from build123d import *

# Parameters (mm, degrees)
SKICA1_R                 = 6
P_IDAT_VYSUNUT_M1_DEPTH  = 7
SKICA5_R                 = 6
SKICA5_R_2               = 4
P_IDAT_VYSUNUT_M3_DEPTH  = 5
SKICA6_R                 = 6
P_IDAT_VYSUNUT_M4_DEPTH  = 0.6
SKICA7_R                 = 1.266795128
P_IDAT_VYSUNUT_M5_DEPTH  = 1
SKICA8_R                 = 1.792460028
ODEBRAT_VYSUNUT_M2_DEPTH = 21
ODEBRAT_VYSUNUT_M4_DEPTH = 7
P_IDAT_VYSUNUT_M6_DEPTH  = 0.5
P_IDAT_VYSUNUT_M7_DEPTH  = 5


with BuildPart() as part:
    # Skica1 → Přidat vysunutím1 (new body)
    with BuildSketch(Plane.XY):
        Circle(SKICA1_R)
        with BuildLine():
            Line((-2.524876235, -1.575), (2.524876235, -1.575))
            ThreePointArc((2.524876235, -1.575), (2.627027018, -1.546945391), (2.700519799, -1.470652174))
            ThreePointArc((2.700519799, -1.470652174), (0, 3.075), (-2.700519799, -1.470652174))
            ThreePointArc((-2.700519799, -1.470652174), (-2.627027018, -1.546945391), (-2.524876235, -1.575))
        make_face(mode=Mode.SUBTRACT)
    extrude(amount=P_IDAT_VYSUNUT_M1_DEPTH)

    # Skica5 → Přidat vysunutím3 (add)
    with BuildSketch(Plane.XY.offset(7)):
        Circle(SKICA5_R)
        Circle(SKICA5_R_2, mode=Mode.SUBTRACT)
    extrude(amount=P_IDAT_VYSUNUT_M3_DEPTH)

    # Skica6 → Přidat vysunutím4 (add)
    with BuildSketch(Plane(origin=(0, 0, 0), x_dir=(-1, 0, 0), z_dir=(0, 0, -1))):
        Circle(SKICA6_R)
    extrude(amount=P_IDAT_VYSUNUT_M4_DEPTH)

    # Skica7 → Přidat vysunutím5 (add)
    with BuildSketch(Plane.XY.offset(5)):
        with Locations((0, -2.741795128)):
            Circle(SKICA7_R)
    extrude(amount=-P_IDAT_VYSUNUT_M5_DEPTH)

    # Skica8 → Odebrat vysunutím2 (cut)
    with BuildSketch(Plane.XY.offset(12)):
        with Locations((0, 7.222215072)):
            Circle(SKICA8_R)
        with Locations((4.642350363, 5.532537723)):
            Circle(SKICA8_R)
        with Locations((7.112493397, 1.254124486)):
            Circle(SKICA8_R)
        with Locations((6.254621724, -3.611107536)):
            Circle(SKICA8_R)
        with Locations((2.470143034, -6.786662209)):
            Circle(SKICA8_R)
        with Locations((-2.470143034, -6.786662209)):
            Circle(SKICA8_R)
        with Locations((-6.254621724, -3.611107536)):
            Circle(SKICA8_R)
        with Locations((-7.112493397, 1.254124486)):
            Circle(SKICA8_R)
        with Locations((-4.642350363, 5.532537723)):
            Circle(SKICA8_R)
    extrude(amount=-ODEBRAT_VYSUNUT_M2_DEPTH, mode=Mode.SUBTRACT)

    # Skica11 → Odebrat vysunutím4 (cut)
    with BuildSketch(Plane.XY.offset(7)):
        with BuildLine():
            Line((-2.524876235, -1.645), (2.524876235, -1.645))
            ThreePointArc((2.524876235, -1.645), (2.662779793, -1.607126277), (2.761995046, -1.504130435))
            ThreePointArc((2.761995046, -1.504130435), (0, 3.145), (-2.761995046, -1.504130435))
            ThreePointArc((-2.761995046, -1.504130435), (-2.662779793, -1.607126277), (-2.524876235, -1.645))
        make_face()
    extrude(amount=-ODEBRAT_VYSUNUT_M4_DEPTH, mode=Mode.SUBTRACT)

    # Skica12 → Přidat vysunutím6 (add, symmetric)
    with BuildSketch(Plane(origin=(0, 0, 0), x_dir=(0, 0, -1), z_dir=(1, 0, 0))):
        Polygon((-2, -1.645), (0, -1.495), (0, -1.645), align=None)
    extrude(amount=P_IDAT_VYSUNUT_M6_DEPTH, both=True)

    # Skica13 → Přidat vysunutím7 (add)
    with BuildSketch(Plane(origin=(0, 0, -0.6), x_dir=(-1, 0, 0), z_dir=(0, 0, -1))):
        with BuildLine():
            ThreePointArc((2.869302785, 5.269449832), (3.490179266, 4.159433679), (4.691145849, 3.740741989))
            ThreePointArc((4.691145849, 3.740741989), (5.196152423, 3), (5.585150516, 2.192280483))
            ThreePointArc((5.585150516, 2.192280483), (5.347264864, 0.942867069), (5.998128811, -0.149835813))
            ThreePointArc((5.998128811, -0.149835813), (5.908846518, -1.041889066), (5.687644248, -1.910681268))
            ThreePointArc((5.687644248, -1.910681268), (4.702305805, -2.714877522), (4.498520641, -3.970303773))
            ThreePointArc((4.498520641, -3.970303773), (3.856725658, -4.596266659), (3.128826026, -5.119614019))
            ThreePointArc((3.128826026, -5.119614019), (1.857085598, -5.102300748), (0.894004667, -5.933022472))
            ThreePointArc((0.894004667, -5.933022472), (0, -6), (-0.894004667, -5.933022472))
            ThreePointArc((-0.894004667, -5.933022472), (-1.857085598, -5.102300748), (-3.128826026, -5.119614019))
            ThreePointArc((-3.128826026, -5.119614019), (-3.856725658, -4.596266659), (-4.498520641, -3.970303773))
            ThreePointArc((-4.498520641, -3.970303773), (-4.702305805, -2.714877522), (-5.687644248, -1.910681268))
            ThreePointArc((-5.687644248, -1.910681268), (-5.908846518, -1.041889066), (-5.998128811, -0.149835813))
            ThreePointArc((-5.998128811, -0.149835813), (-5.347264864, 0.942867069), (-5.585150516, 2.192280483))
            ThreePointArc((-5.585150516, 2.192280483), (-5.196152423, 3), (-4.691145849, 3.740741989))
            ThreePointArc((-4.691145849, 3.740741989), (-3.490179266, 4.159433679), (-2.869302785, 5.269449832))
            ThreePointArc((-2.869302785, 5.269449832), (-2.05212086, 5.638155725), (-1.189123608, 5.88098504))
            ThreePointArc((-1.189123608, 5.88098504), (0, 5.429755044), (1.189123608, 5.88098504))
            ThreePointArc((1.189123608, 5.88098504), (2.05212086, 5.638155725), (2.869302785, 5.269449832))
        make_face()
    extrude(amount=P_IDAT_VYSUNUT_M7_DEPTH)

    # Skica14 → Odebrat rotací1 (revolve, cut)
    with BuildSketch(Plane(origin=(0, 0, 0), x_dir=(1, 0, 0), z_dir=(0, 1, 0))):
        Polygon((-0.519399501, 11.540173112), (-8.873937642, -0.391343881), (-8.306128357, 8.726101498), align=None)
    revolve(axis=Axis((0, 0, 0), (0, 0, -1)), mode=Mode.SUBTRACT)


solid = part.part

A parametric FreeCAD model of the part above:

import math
import FreeCAD as App
import Part
import Sketcher
from FreeCAD import Vector
Q = App.Units.Quantity

doc = App.newDocument("Part")
body = doc.addObject("PartDesign::Body", "Body")

# Sketch on XY plane
sketch1 = body.newObject("Sketcher::SketchObject", "Sketch")
sketch1.AttachmentSupport = (doc.getObject("XY_Plane"), [""])
sketch1.MapMode = "FlatFace"
sketch1.addGeometry([
    Part.Circle(Vector(0, 0, 0), Vector(0, 0, 1), 6),  # 0
    Part.LineSegment(Vector(2.52, -1.57, 0), Vector(-2.52, -1.57, 0)),  # 1
    Part.ArcOfCircle(Part.Circle(Vector(-2.52, -1.38, 0), Vector(0, 0, 1), 0.2), math.radians(-151), math.radians(-90)),  # 2
    Part.ArcOfCircle(Part.Circle(Vector(0, 0, 0), Vector(0, 0, 1), 3.08), math.radians(-29), math.radians(209)),  # 3
    Part.ArcOfCircle(Part.Circle(Vector(2.52, -1.38, 0), Vector(0, 0, 1), 0.2), math.radians(-90), math.radians(-29)),  # 4
], False)
sketch1.addConstraint([
    Sketcher.Constraint("Tangent", 1, 2, 2, 2),
    Sketcher.Constraint("Tangent", 2, 1, 3, 2),
    Sketcher.Constraint("Tangent", 3, 1, 4, 2),
    Sketcher.Constraint("Tangent", 4, 1, 1, 1),
    Sketcher.Constraint("Horizontal", 1),
    Sketcher.Constraint("Coincident", 0, 3, -1, 1),
    Sketcher.Constraint("Coincident", 3, 3, -1, 1),
    Sketcher.Constraint("Equal", 2, 4),
    Sketcher.Constraint("Diameter", 0, Q("12 mm")),
    Sketcher.Constraint("Radius", 2, Q("0.2 mm")),
    Sketcher.Constraint("Radius", 3, Q("3.075 mm")),
    Sketcher.Constraint("DistanceY", 2, 3, -1, 1, Q("1.375 mm")),
])
pad1 = body.newObject("PartDesign::Pad", "Pad")
pad1.Profile = sketch1
pad1.Length = 7

# Sketch on XY plane
sketch2 = body.newObject("Sketcher::SketchObject", "Sketch001")
sketch2.AttachmentSupport = (doc.getObject("XY_Plane"), [""])
sketch2.MapMode = "FlatFace"
sketch2.AttachmentOffset = App.Placement(Vector(0, 0, 7), App.Rotation())
sketch2.addGeometry([
    Part.Circle(Vector(0, 0, 0), Vector(0, 0, 1), 6),
    Part.Circle(Vector(0, 0, 0), Vector(0, 0, 1), 4),
], False)
sketch2.addConstraint([
    Sketcher.Constraint("Coincident", 0, 3, -1, 1),
    Sketcher.Constraint("Coincident", 1, 3, -1, 1),
    Sketcher.Constraint("Diameter", 0, Q("12 mm")),
    Sketcher.Constraint("Diameter", 1, Q("8 mm")),
])
pad2 = body.newObject("PartDesign::Pad", "Pad001")
pad2.Profile = sketch2
pad2.Length = 5

# Sketch on XY plane
sketch3 = body.newObject("Sketcher::SketchObject", "Sketch002")
sketch3.AttachmentSupport = (doc.getObject("XY_Plane"), [""])
sketch3.MapMode = "FlatFace"
sketch3.addGeometry(Part.Circle(Vector(0, 0, 0), Vector(0, 0, 1), 6), False)
sketch3.addConstraint([
    Sketcher.Constraint("Coincident", 0, 3, -1, 1),
    Sketcher.Constraint("Diameter", 0, Q("12 mm")),
])
pad3 = body.newObject("PartDesign::Pad", "Pad002")
pad3.Profile = sketch3
pad3.Length = 0.6
pad3.Reversed = True

# Sketch on XY plane
sketch4 = body.newObject("Sketcher::SketchObject", "Sketch003")
sketch4.AttachmentSupport = (doc.getObject("XY_Plane"), [""])
sketch4.MapMode = "FlatFace"
sketch4.AttachmentOffset = App.Placement(Vector(0, 0, 5), App.Rotation())
sketch4.addGeometry(Part.Circle(Vector(0, -2.7, 0), Vector(0, 0, 1), 1.3), False)
sketch4.addConstraint([
    Sketcher.Constraint("PointOnObject", 0, 3, -2),
    Sketcher.Constraint("Diameter", 0, Q("2.53359 mm")),
    Sketcher.Constraint("DistanceY", 0, 3, -1, 1, Q("2.741795 mm")),
])
pad4 = body.newObject("PartDesign::Pad", "Pad003")
pad4.Profile = sketch4
pad4.Length = 1
pad4.Reversed = True

# Sketch on XY plane
sketch5 = body.newObject("Sketcher::SketchObject", "Sketch004")
sketch5.AttachmentSupport = (doc.getObject("XY_Plane"), [""])
sketch5.MapMode = "FlatFace"
sketch5.AttachmentOffset = App.Placement(Vector(0, 0, 12), App.Rotation())
sketch5.addGeometry([
    Part.Circle(Vector(0, 7.2, 0), Vector(0, 0, 1), 1.8),  # 0
    Part.Circle(Vector(4.6, 5.5, 0), Vector(0, 0, 1), 1.8),  # 1
    Part.Circle(Vector(7.1, 1.3, 0), Vector(0, 0, 1), 1.8),  # 2
    Part.Circle(Vector(6.3, -3.6, 0), Vector(0, 0, 1), 1.8),  # 3
    Part.Circle(Vector(2.5, -6.8, 0), Vector(0, 0, 1), 1.8),  # 4
    Part.Circle(Vector(-2.5, -6.8, 0), Vector(0, 0, 1), 1.8),  # 5
    Part.Circle(Vector(-6.3, -3.6, 0), Vector(0, 0, 1), 1.8),  # 6
    Part.Circle(Vector(-7.1, 1.3, 0), Vector(0, 0, 1), 1.8),  # 7
    Part.Circle(Vector(-4.6, 5.5, 0), Vector(0, 0, 1), 1.8),  # 8
], False)
sketch5.addConstraint([
    Sketcher.Constraint("Equal", 0, 1),
    Sketcher.Constraint("Equal", 1, 2),
    Sketcher.Constraint("Equal", 2, 3),
    Sketcher.Constraint("Equal", 3, 4),
    Sketcher.Constraint("Equal", 4, 5),
    Sketcher.Constraint("Equal", 5, 6),
    Sketcher.Constraint("Equal", 6, 7),
    Sketcher.Constraint("Equal", 7, 8),
    Sketcher.Constraint("Symmetric", 4, 3, 5, 3, -2),
    Sketcher.Constraint("Symmetric", 3, 3, 6, 3, -2),
    Sketcher.Constraint("Symmetric", 2, 3, 7, 3, -2),
    Sketcher.Constraint("Symmetric", 1, 3, 8, 3, -2),
    Sketcher.Constraint("PointOnObject", 0, 3, -2),
    Sketcher.Constraint("Diameter", 0, Q("3.58492 mm")),
    Sketcher.Constraint("DistanceY", 4, 3, 1, 3, Q("12.3192 mm")),
    Sketcher.Constraint("DistanceX", 8, 3, 1, 3, Q("9.284701 mm")),
    Sketcher.Constraint("DistanceX", -1, 1, 3, 3, Q("6.254622 mm")),
    Sketcher.Constraint("DistanceY", 2, 3, 0, 3, Q("5.968091 mm")),
    Sketcher.Constraint("DistanceX", 3, 3, 2, 3, Q("0.857872 mm")),
    Sketcher.Constraint("DistanceX", 4, 3, 3, 3, Q("3.784479 mm")),
    Sketcher.Constraint("DistanceY", -1, 1, 0, 3, Q("7.222215 mm")),
    Sketcher.Constraint("DistanceY", -1, 1, 1, 3, Q("5.532538 mm")),
    Sketcher.Constraint("DistanceY", 3, 3, -1, 1, Q("3.611108 mm")),
])
pocket1 = body.newObject("PartDesign::Pocket", "Pocket")
pocket1.Profile = sketch5
pocket1.Length = 21

# Sketch on XY plane
sketch6 = body.newObject("Sketcher::SketchObject", "Sketch005")
sketch6.AttachmentSupport = (doc.getObject("XY_Plane"), [""])
sketch6.MapMode = "FlatFace"
sketch6.AttachmentOffset = App.Placement(Vector(0, 0, 7), App.Rotation())
sketch6.addGeometry([
    Part.LineSegment(Vector(-2.52, -1.65, 0), Vector(2.52, -1.65, 0)),
    Part.ArcOfCircle(Part.Circle(Vector(2.52, -1.37, 0), Vector(0, 0, 1), 0.27), math.radians(-90), math.radians(-29)),
    Part.ArcOfCircle(Part.Circle(Vector(0, 0, 0), Vector(0, 0, 1), 3.15), math.radians(-29), math.radians(209)),
    Part.ArcOfCircle(Part.Circle(Vector(-2.52, -1.37, 0), Vector(0, 0, 1), 0.27), math.radians(-151), math.radians(-90)),
], False)
sketch6.addConstraint([
    Sketcher.Constraint("Tangent", 0, 2, 1, 1),
    Sketcher.Constraint("Tangent", 1, 2, 2, 1),
    Sketcher.Constraint("Tangent", 2, 2, 3, 1),
    Sketcher.Constraint("Tangent", 3, 2, 0, 1),
    Sketcher.Constraint("Horizontal", 0),
    Sketcher.Constraint("Coincident", 2, 3, -1, 1),
    Sketcher.Constraint("Equal", 1, 3),
    Sketcher.Constraint("Radius", 1, Q("0.27 mm")),
    Sketcher.Constraint("Radius", 2, Q("3.145 mm")),
    Sketcher.Constraint("DistanceY", 1, 3, -1, 1, Q("1.375 mm")),
])
pocket2 = body.newObject("PartDesign::Pocket", "Pocket001")
pocket2.Profile = sketch6
pocket2.Length = 7

# Sketch on YZ plane
sketch7 = body.newObject("Sketcher::SketchObject", "Sketch006")
sketch7.AttachmentSupport = (doc.getObject("YZ_Plane"), [""])
sketch7.MapMode = "FlatFace"
sketch7.addGeometry([
    Part.LineSegment(Vector(-1.5, 0, 0), Vector(-1.65, 2, 0)),
    Part.LineSegment(Vector(-1.65, 2, 0), Vector(-1.65, 0, 0)),
    Part.LineSegment(Vector(-1.65, 0, 0), Vector(-1.5, 0, 0)),
], False)
sketch7.addConstraint([
    Sketcher.Constraint("Coincident", 0, 2, 1, 1),
    Sketcher.Constraint("Coincident", 1, 2, 2, 1),
    Sketcher.Constraint("Coincident", 2, 2, 0, 1),
    Sketcher.Constraint("Vertical", 1),
    Sketcher.Constraint("Horizontal", 2),
    Sketcher.Constraint("PointOnObject", 1, 2, -1),
    Sketcher.Constraint("DistanceY", 1, 2, 1, 1, Q("2 mm")),
    Sketcher.Constraint("DistanceX", 2, 1, 2, 2, Q("0.15 mm")),
    Sketcher.Constraint("DistanceX", 0, 2, -1, 1, Q("1.645 mm")),
])
pad5 = body.newObject("PartDesign::Pad", "Pad004")
pad5.Profile = sketch7
pad5.Length = 1
pad5.Midplane = True

# Sketch on XY plane
sketch8 = body.newObject("Sketcher::SketchObject", "Sketch007")
sketch8.AttachmentSupport = (doc.getObject("XY_Plane"), [""])
sketch8.MapMode = "FlatFace"
sketch8.AttachmentOffset = App.Placement(Vector(0, 0, -0.6), App.Rotation())
sketch8.addGeometry([
    Part.ArcOfCircle(Part.Circle(Vector(-4.6, 5.5, 0), Vector(0, 0, 1), 1.8), math.radians(-92), math.radians(-8)),  # 0
    Part.ArcOfCircle(Part.Circle(Vector(0, 0, 0), Vector(0, 0, 1), 6), math.radians(101.43), math.radians(118.57)),  # 1
    Part.ArcOfCircle(Part.Circle(Vector(0, 7.2, 0), Vector(0, 0, 1), 1.8), math.radians(-132), math.radians(-48)),  # 2
    Part.ArcOfCircle(Part.Circle(Vector(0, 0, 0), Vector(0, 0, 1), 6), math.radians(61.43), math.radians(78.57)),  # 3
    Part.ArcOfCircle(Part.Circle(Vector(4.6, 5.5, 0), Vector(0, 0, 1), 1.8), math.radians(-172), math.radians(-88)),  # 4
    Part.ArcOfCircle(Part.Circle(Vector(0, 0, 0), Vector(0, 0, 1), 6), math.radians(21.43), math.radians(38.57)),  # 5
    Part.ArcOfCircle(Part.Circle(Vector(7.1, 1.3, 0), Vector(0, 0, 1), 1.8), math.radians(148), math.radians(232)),  # 6
    Part.ArcOfCircle(Part.Circle(Vector(0, 0, 0), Vector(0, 0, 1), 6), math.radians(-18.57), math.radians(-1.43)),  # 7
    Part.ArcOfCircle(Part.Circle(Vector(6.3, -3.6, 0), Vector(0, 0, 1), 1.8), math.radians(108), math.radians(192)),  # 8
    Part.ArcOfCircle(Part.Circle(Vector(0, 0, 0), Vector(0, 0, 1), 6), math.radians(-58.57), math.radians(-41.43)),  # 9
    Part.ArcOfCircle(Part.Circle(Vector(2.5, -6.8, 0), Vector(0, 0, 1), 1.8), math.radians(68), math.radians(152)),  # 10
    Part.ArcOfCircle(Part.Circle(Vector(0, 0, 0), Vector(0, 0, 1), 6), math.radians(-98.57), math.radians(-81.43)),  # 11
    Part.ArcOfCircle(Part.Circle(Vector(-2.5, -6.8, 0), Vector(0, 0, 1), 1.8), math.radians(28), math.radians(112)),  # 12
    Part.ArcOfCircle(Part.Circle(Vector(0, 0, 0), Vector(0, 0, 1), 6), math.radians(-138.57), math.radians(-121.43)),  # 13
    Part.ArcOfCircle(Part.Circle(Vector(-6.3, -3.6, 0), Vector(0, 0, 1), 1.8), math.radians(-12), math.radians(72)),  # 14
    Part.ArcOfCircle(Part.Circle(Vector(0, 0, 0), Vector(0, 0, 1), 6), math.radians(-178.57), math.radians(-161.43)),  # 15
    Part.ArcOfCircle(Part.Circle(Vector(-7.1, 1.3, 0), Vector(0, 0, 1), 1.8), math.radians(-52), math.radians(32)),  # 16
    Part.ArcOfCircle(Part.Circle(Vector(0, 0, 0), Vector(0, 0, 1), 6), math.radians(141.43), math.radians(158.57)),  # 17
], False)
sketch8.addConstraint([
    Sketcher.Constraint("Coincident", 0, 2, 1, 2),
    Sketcher.Constraint("Coincident", 1, 1, 2, 1),
    Sketcher.Constraint("Coincident", 2, 2, 3, 2),
    Sketcher.Constraint("Coincident", 3, 1, 4, 1),
    Sketcher.Constraint("Coincident", 4, 2, 5, 2),
    Sketcher.Constraint("Coincident", 5, 1, 6, 1),
    Sketcher.Constraint("Coincident", 6, 2, 7, 2),
    Sketcher.Constraint("Coincident", 7, 1, 8, 1),
    Sketcher.Constraint("Coincident", 8, 2, 9, 2),
    Sketcher.Constraint("Coincident", 9, 1, 10, 1),
    Sketcher.Constraint("Coincident", 10, 2, 11, 2),
    Sketcher.Constraint("Coincident", 11, 1, 12, 1),
    Sketcher.Constraint("Coincident", 12, 2, 13, 2),
    Sketcher.Constraint("Coincident", 13, 1, 14, 1),
    Sketcher.Constraint("Coincident", 14, 2, 15, 2),
    Sketcher.Constraint("Coincident", 15, 1, 16, 1),
    Sketcher.Constraint("Coincident", 16, 2, 17, 2),
    Sketcher.Constraint("Coincident", 17, 1, 0, 1),
    Sketcher.Constraint("Coincident", 1, 3, -1, 1),
    Sketcher.Constraint("Coincident", 3, 3, -1, 1),
    Sketcher.Constraint("Coincident", 5, 3, -1, 1),
    Sketcher.Constraint("Coincident", 7, 3, -1, 1),
    Sketcher.Constraint("Coincident", 9, 3, -1, 1),
    Sketcher.Constraint("Coincident", 11, 3, -1, 1),
    Sketcher.Constraint("Coincident", 13, 3, -1, 1),
    Sketcher.Constraint("Coincident", 15, 3, -1, 1),
    Sketcher.Constraint("Coincident", 17, 3, -1, 1),
    Sketcher.Constraint("Equal", 0, 2),
    Sketcher.Constraint("Equal", 1, 3),
    Sketcher.Constraint("Equal", 2, 4),
    Sketcher.Constraint("Equal", 3, 5),
    Sketcher.Constraint("Equal", 4, 6),
    Sketcher.Constraint("Equal", 5, 7),
    Sketcher.Constraint("Equal", 6, 8),
    Sketcher.Constraint("Equal", 7, 9),
    Sketcher.Constraint("Equal", 8, 10),
    Sketcher.Constraint("Equal", 9, 11),
    Sketcher.Constraint("Equal", 10, 12),
    Sketcher.Constraint("Equal", 11, 13),
    Sketcher.Constraint("Equal", 12, 14),
    Sketcher.Constraint("Equal", 13, 15),
    Sketcher.Constraint("Equal", 14, 16),
    Sketcher.Constraint("Equal", 15, 17),
    Sketcher.Constraint("Symmetric", 0, 3, 4, 3, -2),
    Sketcher.Constraint("Symmetric", 10, 3, 12, 3, -2),
    Sketcher.Constraint("Symmetric", 8, 3, 14, 3, -2),
    Sketcher.Constraint("Symmetric", 6, 3, 16, 3, -2),
    Sketcher.Constraint("PointOnObject", 2, 3, -2),
    Sketcher.Constraint("Radius", 1, Q("6 mm")),
    Sketcher.Constraint("Radius", 0, Q("1.79246 mm")),
    Sketcher.Constraint("DistanceX", 0, 3, 4, 3, Q("9.284701 mm")),
    Sketcher.Constraint("DistanceX", 4, 3, 5, 1, Q("0.9428 mm")),
    Sketcher.Constraint("DistanceX", 4, 2, 7, 1, Q("0.996498 mm")),
    Sketcher.Constraint("DistanceX", 8, 2, 8, 3, Q("1.756101 mm")),
    Sketcher.Constraint("DistanceX", 14, 2, 12, 3, Q("3.217501 mm")),
    Sketcher.Constraint("DistanceX", -1, 1, 8, 3, Q("6.254622 mm")),
    Sketcher.Constraint("DistanceX", -1, 1, 6, 2, Q("5.998129 mm")),
    Sketcher.Constraint("DistanceY", 6, 3, 2, 3, Q("5.968091 mm")),
    Sketcher.Constraint("DistanceY", 10, 3, 8, 2, Q("2.816358 mm")),
])
pad6 = body.newObject("PartDesign::Pad", "Pad005")
pad6.Profile = sketch8
pad6.Length = 5
pad6.Reversed = True

# Sketch on XZ plane
sketch9 = body.newObject("Sketcher::SketchObject", "Sketch008")
sketch9.AttachmentSupport = (doc.getObject("XZ_Plane"), [""])
sketch9.MapMode = "FlatFace"
sketch9.addGeometry([
    Part.LineSegment(Vector(-9, 0, 0), Vector(-1, -12, 0)),
    Part.LineSegment(Vector(-1, -12, 0), Vector(-8, -9, 0)),
    Part.LineSegment(Vector(-8, -9, 0), Vector(-9, 0, 0)),
], False)
sketch9.addConstraint([
    Sketcher.Constraint("Coincident", 0, 2, 1, 1),
    Sketcher.Constraint("Coincident", 1, 2, 2, 1),
    Sketcher.Constraint("Coincident", 2, 2, 0, 1),
    Sketcher.Constraint("Angle", 0, Q("-55 deg")),
    Sketcher.Constraint("DistanceX", 0, 2, -1, 1, Q("0.5194 mm")),
    Sketcher.Constraint("DistanceY", 1, 2, -1, 1, Q("8.726101 mm")),
    Sketcher.Constraint("Distance", 2, Q("9.135109 mm")),
    Sketcher.Constraint("DistanceX", 1, 2, -1, 1, Q("8.306128 mm")),
    Sketcher.Constraint("DistanceY", 0, 2, 1, 2, Q("2.814072 mm")),
])
groove = body.newObject("PartDesign::Groove", "Groove")
groove.Profile = sketch9
groove.ReferenceAxis = (sketch9, ["V_Axis"])
groove.Angle = 360

doc.recompute()
